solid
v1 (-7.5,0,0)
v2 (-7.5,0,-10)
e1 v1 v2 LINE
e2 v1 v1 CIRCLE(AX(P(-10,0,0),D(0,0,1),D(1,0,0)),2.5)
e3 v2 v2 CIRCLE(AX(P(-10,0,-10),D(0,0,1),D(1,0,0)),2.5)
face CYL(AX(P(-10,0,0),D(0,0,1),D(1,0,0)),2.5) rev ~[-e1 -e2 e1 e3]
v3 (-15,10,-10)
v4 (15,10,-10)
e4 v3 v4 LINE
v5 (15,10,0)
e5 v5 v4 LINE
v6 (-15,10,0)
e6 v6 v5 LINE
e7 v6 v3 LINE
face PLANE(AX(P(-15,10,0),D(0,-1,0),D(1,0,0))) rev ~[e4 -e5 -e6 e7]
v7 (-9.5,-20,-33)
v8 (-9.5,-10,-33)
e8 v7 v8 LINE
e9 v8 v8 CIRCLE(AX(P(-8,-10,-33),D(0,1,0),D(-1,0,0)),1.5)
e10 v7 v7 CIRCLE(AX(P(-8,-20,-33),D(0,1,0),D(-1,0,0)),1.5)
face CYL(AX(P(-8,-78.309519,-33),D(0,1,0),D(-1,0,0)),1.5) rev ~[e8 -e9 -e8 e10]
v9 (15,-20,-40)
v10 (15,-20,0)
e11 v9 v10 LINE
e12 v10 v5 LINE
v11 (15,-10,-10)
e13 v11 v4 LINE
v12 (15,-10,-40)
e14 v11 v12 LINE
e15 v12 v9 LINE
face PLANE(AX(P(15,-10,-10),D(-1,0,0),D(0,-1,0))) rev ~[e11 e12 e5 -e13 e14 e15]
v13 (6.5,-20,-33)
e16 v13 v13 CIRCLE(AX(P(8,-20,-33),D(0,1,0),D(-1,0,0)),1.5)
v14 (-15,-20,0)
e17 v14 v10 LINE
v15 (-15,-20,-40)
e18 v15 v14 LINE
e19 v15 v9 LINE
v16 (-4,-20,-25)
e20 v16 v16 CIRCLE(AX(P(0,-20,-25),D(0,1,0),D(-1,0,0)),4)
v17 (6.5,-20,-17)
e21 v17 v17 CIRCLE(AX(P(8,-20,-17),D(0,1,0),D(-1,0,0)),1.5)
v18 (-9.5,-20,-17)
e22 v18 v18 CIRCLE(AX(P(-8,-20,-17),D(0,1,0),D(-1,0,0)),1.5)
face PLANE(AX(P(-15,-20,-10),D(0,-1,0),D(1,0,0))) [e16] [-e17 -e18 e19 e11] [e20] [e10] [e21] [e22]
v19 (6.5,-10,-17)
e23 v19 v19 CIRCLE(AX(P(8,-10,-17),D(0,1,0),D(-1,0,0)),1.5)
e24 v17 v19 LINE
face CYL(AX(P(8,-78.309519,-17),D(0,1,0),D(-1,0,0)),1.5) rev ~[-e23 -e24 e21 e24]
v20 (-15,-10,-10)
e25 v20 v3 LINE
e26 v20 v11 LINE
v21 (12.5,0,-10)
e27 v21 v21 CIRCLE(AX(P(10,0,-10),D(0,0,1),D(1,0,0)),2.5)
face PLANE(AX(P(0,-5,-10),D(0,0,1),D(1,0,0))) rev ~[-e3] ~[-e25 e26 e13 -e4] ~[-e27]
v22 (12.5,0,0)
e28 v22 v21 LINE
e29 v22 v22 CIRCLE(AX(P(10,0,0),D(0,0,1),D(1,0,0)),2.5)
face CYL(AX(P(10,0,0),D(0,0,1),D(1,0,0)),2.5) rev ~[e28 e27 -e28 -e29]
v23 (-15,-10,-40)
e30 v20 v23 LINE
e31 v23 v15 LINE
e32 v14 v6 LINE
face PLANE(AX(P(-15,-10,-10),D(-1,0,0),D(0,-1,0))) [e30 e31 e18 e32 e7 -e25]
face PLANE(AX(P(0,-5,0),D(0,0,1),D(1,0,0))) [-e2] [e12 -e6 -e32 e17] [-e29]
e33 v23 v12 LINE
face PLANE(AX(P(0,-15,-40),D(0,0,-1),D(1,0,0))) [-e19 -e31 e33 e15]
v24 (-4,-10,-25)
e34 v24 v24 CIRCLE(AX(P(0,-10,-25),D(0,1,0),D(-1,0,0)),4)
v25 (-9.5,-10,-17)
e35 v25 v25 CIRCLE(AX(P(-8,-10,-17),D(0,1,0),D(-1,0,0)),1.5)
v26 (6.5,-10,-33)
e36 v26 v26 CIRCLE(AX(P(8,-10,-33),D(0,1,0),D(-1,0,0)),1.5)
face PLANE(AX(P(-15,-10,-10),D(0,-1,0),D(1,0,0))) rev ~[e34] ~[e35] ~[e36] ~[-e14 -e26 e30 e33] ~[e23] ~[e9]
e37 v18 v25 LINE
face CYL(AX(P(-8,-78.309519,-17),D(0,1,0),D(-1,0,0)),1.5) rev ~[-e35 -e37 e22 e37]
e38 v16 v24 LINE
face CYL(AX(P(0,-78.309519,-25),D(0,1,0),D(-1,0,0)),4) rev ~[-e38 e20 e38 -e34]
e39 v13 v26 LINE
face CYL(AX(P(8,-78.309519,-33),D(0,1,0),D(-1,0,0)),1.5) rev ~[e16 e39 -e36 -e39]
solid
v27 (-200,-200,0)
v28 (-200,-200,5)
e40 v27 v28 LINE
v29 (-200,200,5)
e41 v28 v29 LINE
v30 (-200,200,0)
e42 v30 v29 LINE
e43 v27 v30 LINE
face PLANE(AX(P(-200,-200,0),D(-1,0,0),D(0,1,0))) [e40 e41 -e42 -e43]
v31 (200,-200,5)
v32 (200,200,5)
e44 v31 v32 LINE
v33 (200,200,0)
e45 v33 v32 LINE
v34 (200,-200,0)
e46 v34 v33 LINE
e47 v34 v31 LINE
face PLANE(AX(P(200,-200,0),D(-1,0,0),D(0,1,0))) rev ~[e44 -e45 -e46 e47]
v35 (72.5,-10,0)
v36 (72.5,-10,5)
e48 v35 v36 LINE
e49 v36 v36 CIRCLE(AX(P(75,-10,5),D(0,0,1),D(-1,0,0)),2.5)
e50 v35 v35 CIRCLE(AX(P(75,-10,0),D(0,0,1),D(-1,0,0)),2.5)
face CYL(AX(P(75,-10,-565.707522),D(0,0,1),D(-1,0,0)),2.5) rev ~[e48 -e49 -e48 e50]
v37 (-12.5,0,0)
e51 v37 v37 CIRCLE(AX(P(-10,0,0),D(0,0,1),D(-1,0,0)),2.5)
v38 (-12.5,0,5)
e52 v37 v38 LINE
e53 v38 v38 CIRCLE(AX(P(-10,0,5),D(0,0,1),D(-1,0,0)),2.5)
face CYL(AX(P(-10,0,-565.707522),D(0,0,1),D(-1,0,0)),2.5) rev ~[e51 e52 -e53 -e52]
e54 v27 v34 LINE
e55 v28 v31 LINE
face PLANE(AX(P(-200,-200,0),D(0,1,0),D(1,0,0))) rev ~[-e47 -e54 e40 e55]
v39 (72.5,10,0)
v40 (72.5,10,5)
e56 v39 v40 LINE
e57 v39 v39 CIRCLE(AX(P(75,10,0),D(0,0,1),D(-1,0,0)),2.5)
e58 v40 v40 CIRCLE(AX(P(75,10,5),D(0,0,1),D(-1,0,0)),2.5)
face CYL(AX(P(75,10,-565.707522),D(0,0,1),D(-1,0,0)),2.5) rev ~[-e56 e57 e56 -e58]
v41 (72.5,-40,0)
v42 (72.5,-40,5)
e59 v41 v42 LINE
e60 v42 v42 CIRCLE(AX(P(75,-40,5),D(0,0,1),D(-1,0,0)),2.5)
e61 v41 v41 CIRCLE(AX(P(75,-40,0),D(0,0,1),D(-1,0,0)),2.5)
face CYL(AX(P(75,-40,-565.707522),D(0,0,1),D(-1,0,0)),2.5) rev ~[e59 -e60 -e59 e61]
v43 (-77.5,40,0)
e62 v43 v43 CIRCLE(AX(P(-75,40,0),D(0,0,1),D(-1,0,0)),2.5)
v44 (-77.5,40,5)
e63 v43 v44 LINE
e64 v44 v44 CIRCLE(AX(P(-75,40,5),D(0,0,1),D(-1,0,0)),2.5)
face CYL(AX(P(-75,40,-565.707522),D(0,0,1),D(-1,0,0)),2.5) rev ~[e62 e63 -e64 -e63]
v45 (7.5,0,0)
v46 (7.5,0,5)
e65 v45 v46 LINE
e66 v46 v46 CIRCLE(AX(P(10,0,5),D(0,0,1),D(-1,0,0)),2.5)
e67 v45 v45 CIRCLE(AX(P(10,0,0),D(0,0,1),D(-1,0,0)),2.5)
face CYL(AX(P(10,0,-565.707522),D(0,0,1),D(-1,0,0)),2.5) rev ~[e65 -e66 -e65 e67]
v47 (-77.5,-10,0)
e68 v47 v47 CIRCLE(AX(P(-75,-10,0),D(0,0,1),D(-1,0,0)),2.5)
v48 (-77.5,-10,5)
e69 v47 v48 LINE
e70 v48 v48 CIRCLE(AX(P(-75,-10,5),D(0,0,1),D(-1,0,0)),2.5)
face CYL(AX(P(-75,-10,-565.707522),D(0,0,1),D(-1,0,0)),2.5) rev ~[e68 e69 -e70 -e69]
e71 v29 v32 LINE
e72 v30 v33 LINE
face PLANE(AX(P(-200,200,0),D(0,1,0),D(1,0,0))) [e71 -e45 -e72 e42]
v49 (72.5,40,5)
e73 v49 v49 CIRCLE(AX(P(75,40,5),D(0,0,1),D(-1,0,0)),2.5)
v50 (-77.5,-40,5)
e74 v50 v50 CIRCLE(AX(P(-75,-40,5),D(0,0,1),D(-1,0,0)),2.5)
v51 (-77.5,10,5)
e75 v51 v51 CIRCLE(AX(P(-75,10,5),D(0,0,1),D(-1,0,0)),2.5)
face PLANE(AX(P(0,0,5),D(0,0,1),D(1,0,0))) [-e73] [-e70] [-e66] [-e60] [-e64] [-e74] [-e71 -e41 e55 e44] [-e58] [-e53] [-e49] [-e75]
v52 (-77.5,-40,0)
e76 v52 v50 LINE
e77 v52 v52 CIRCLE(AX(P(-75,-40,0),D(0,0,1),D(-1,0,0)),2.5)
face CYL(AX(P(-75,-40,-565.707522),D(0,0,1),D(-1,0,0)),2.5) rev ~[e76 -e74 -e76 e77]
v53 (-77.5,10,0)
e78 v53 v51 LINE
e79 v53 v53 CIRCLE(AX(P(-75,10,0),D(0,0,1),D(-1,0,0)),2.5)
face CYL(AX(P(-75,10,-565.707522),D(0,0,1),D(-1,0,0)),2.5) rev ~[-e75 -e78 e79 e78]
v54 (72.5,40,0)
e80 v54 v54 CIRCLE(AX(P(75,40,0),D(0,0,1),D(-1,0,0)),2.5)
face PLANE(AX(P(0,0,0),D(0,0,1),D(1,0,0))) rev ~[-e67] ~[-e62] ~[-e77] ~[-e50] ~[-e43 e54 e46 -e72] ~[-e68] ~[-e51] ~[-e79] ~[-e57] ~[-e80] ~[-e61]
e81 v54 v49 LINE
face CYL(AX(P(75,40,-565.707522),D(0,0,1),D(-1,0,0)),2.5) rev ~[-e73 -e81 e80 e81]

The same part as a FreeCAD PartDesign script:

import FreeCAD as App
import Part
import Sketcher
Q = App.Units.Quantity


def add_polygon(sketch, points):
    """Adds a closed chain of lines whose ends are joined by coincident constraints."""
    first, n = sketch.GeometryCount, len(points)
    for a, b in zip(points, points[1:] + points[:1]):
        sketch.addGeometry(Part.LineSegment(App.Vector(*a, 0), App.Vector(*b, 0)), False)
    for i in range(n):
        sketch.addConstraint(Sketcher.Constraint("Coincident", first + i, 2, first + (i + 1) % n, 1))

doc = App.newDocument("Part")
body = doc.addObject("PartDesign::Body", "Body")

# Sketch on XY plane
sketch1 = body.newObject("Sketcher::SketchObject", "Sketch")
sketch1.AttachmentSupport = (doc.getObject("XY_Plane"), [""])
sketch1.MapMode = "FlatFace"
add_polygon(sketch1, [(-200, 200), (-200, -200), (200, -200), (200, 200)])  # lines 0-3
sketch1.addConstraint([
    Sketcher.Constraint("Vertical", 0),
    Sketcher.Constraint("Horizontal", 1),
    Sketcher.Constraint("Vertical", 2),
    Sketcher.Constraint("Horizontal", 3),
    Sketcher.Constraint("Symmetric", 0, 2, 2, 2, -1, 1),
    Sketcher.Constraint("Equal", 3, 0),
    Sketcher.Constraint("DistanceX", 1, 1, 1, 2, Q("400 mm")),
])
pad1 = body.newObject("PartDesign::Pad", "Pad")
pad1.Profile = sketch1
pad1.Length = 5

# Sketch on XY plane
sketch2 = body.newObject("Sketcher::SketchObject", "Sketch001")
sketch2.AttachmentSupport = (doc.getObject("XY_Plane"), [""])
sketch2.MapMode = "FlatFace"
sketch2.addGeometry([
    Part.Circle(App.Vector(-75, 40, 0), App.Vector(0, 0, 1), 2.5),  # 0
    Part.Circle(App.Vector(-75, 10, 0), App.Vector(0, 0, 1), 2.5),  # 1
    Part.Circle(App.Vector(-75, -10, 0), App.Vector(0, 0, 1), 2.5),  # 2
    Part.Circle(App.Vector(-75, -40, 0), App.Vector(0, 0, 1), 2.5),  # 3
    Part.Circle(App.Vector(75, 40, 0), App.Vector(0, 0, 1), 2.5),  # 4
    Part.Circle(App.Vector(75, 10, 0), App.Vector(0, 0, 1), 2.5),  # 5
    Part.Circle(App.Vector(75, -10, 0), App.Vector(0, 0, 1), 2.5),  # 6
    Part.Circle(App.Vector(75, -40, 0), App.Vector(0, 0, 1), 2.5),  # 7
    Part.Circle(App.Vector(-10, 0, 0), App.Vector(0, 0, 1), 2.5),  # 8
    Part.Circle(App.Vector(10, 0, 0), App.Vector(0, 0, 1), 2.5),  # 9
], False)
sketch2.addConstraint([
    Sketcher.Constraint("Equal", 0, 1),
    Sketcher.Constraint("Equal", 1, 2),
    Sketcher.Constraint("Equal", 2, 3),
    Sketcher.Constraint("Equal", 3, 4),
    Sketcher.Constraint("Equal", 4, 5),
    Sketcher.Constraint("Equal", 5, 6),
    Sketcher.Constraint("Equal", 6, 7),
    Sketcher.Constraint("Equal", 7, 8),
    Sketcher.Constraint("Equal", 8, 9),
    Sketcher.Constraint("Symmetric", 3, 3, 4, 3, -1, 1),
    Sketcher.Constraint("Symmetric", 2, 3, 5, 3, -1, 1),
    Sketcher.Constraint("Symmetric", 1, 3, 6, 3, -1, 1),
    Sketcher.Constraint("Symmetric", 0, 3, 7, 3, -1, 1),
    Sketcher.Constraint("Symmetric", 8, 3, 9, 3, -1, 1),
    Sketcher.Constraint("Symmetric", 0, 3, 4, 3, -2),
    Sketcher.Constraint("Symmetric", 1, 3, 5, 3, -2),
    Sketcher.Constraint("PointOnObject", 8, 3, -1),
    Sketcher.Constraint("Vertical", 0, 3, 1, 3),
    Sketcher.Constraint("Diameter", 0, Q("5 mm")),
    Sketcher.Constraint("DistanceX", 0, 3, -1, 1, Q("75 mm")),
    Sketcher.Constraint("DistanceY", -1, 1, 0, 3, Q("40 mm")),
    Sketcher.Constraint("DistanceY", -1, 1, 1, 3, Q("10 mm")),
    Sketcher.Constraint("DistanceX", 8, 3, -1, 1, Q("10 mm")),
])
doc.recompute()
hole = body.newObject("PartDesign::Hole", "Hole")
hole.Profile = sketch2
hole.ThreadType = "None"
hole.Diameter = 5
hole.DepthType = "ThroughAll"
hole.Reversed = True
body2 = doc.addObject("PartDesign::Body", "Body001")

# Sketch on XY plane
sketch3 = body2.newObject("Sketcher::SketchObject", "Sketch002")
sketch3.AttachmentSupport = (doc.getObject("XY_Plane001"), [""])
sketch3.MapMode = "FlatFace"
add_polygon(sketch3, [(-15, 10), (-15, -20), (15, -20), (15, 10)])  # lines 0-3
sketch3.addGeometry(Part.Circle(App.Vector(-10, 0, 0), App.Vector(0, 0, 1), 2.5), False)  # 4
sketch3.addGeometry(Part.Circle(App.Vector(10, 0, 0), App.Vector(0, 0, 1), 2.5), False)  # 5
sketch3.addConstraint([
    Sketcher.Constraint("Vertical", 0),
    Sketcher.Constraint("Horizontal", 1),
    Sketcher.Constraint("Vertical", 2),
    Sketcher.Constraint("Horizontal", 3),
    Sketcher.Constraint("Equal", 4, 5),
    Sketcher.Constraint("Symmetric", 4, 3, 5, 3, -1, 1),
    Sketcher.Constraint("PointOnObject", 4, 3, -1),
    Sketcher.Constraint("Equal", 3, 0),
    Sketcher.Constraint("Diameter", 4, Q("5 mm")),
    Sketcher.Constraint("DistanceX", 1, 1, 1, 2, Q("30 mm")),
    Sketcher.Constraint("DistanceX", 4, 3, -1, 1, Q("10 mm")),
    Sketcher.Constraint("DistanceX", 0, 2, -1, 1, Q("15 mm")),
    Sketcher.Constraint("DistanceY", 0, 2, -1, 1, Q("20 mm")),
])
pad2 = body2.newObject("PartDesign::Pad", "Pad001")
pad2.Profile = sketch3
pad2.Length = 10
pad2.Reversed = True

# Sketch on XY plane
sketch4 = body2.newObject("Sketcher::SketchObject", "Sketch003")
sketch4.AttachmentSupport = (doc.getObject("XY_Plane001"), [""])
sketch4.MapMode = "FlatFace"
sketch4.AttachmentOffset = App.Placement(App.Vector(0, 0, -10), App.Rotation())
add_polygon(sketch4, [(-15, -20), (-15, -10), (15, -10), (15, -20)])  # lines 0-3
sketch4.addConstraint([
    Sketcher.Constraint("Vertical", 0),
    Sketcher.Constraint("Horizontal", 1),
    Sketcher.Constraint("Vertical", 2),
    Sketcher.Constraint("Horizontal", 3),
    Sketcher.Constraint("DistanceX", 1, 1, 1, 2, Q("30 mm")),
    Sketcher.Constraint("DistanceY", 0, 1, 0, 2, Q("10 mm")),
    Sketcher.Constraint("DistanceX", 0, 2, -1, 1, Q("15 mm")),
    Sketcher.Constraint("DistanceY", 0, 2, -1, 1, Q("10 mm")),
])
pad3 = body2.newObject("PartDesign::Pad", "Pad002")
pad3.Profile = sketch4
pad3.Length = 30
pad3.Reversed = True

# Sketch on XZ plane
sketch5 = body2.newObject("Sketcher::SketchObject", "Sketch004")
sketch5.AttachmentSupport = (doc.getObject("XZ_Plane001"), [""])
sketch5.MapMode = "FlatFace"
sketch5.AttachmentOffset = App.Placement(App.Vector(0, 0, 20), App.Rotation())
sketch5.addGeometry([
    Part.Circle(App.Vector(-8, -17, 0), App.Vector(0, 0, 1), 1.5),
    Part.Circle(App.Vector(-8, -33, 0), App.Vector(0, 0, 1), 1.5),
    Part.Circle(App.Vector(8, -17, 0), App.Vector(0, 0, 1), 1.5),
    Part.Circle(App.Vector(8, -33, 0), App.Vector(0, 0, 1), 1.5),
], False)
sketch5.addConstraint([
    Sketcher.Constraint("Equal", 0, 1),
    Sketcher.Constraint("Equal", 1, 2),
    Sketcher.Constraint("Equal", 2, 3),
    Sketcher.Constraint("Symmetric", 0, 3, 2, 3, -2),
    Sketcher.Constraint("Symmetric", 1, 3, 3, 3, -2),
    Sketcher.Constraint("Vertical", 0, 3, 1, 3),
    Sketcher.Constraint("Diameter", 0, Q("3 mm")),
    Sketcher.Constraint("DistanceX", 0, 3, -1, 1, Q("8 mm")),
    Sketcher.Constraint("DistanceY", 0, 3, -1, 1, Q("17 mm")),
    Sketcher.Constraint("DistanceY", 1, 3, -1, 1, Q("33 mm")),
])
doc.recompute()
hole2 = body2.newObject("PartDesign::Hole", "Hole001")
hole2.Profile = sketch5
hole2.ThreadType = "None"
hole2.Diameter = 3
hole2.DepthType = "ThroughAll"

# Sketch on XZ plane
sketch6 = body2.newObject("Sketcher::SketchObject", "Sketch005")
sketch6.AttachmentSupport = (doc.getObject("XZ_Plane001"), [""])
sketch6.MapMode = "FlatFace"
sketch6.AttachmentOffset = App.Placement(App.Vector(0, 0, 20), App.Rotation())
sketch6.addGeometry(Part.Circle(App.Vector(0, -25, 0), App.Vector(0, 0, 1), 4), False)
sketch6.addConstraint([
    Sketcher.Constraint("PointOnObject", 0, 3, -2),
    Sketcher.Constraint("Diameter", 0, Q("8 mm")),
    Sketcher.Constraint("DistanceY", 0, 3, -1, 1, Q("25 mm")),
])
doc.recompute()
hole3 = body2.newObject("PartDesign::Hole", "Hole002")
hole3.Profile = sketch6
hole3.ThreadType = "None"
hole3.Diameter = 8
hole3.DepthType = "ThroughAll"

doc.recompute()
